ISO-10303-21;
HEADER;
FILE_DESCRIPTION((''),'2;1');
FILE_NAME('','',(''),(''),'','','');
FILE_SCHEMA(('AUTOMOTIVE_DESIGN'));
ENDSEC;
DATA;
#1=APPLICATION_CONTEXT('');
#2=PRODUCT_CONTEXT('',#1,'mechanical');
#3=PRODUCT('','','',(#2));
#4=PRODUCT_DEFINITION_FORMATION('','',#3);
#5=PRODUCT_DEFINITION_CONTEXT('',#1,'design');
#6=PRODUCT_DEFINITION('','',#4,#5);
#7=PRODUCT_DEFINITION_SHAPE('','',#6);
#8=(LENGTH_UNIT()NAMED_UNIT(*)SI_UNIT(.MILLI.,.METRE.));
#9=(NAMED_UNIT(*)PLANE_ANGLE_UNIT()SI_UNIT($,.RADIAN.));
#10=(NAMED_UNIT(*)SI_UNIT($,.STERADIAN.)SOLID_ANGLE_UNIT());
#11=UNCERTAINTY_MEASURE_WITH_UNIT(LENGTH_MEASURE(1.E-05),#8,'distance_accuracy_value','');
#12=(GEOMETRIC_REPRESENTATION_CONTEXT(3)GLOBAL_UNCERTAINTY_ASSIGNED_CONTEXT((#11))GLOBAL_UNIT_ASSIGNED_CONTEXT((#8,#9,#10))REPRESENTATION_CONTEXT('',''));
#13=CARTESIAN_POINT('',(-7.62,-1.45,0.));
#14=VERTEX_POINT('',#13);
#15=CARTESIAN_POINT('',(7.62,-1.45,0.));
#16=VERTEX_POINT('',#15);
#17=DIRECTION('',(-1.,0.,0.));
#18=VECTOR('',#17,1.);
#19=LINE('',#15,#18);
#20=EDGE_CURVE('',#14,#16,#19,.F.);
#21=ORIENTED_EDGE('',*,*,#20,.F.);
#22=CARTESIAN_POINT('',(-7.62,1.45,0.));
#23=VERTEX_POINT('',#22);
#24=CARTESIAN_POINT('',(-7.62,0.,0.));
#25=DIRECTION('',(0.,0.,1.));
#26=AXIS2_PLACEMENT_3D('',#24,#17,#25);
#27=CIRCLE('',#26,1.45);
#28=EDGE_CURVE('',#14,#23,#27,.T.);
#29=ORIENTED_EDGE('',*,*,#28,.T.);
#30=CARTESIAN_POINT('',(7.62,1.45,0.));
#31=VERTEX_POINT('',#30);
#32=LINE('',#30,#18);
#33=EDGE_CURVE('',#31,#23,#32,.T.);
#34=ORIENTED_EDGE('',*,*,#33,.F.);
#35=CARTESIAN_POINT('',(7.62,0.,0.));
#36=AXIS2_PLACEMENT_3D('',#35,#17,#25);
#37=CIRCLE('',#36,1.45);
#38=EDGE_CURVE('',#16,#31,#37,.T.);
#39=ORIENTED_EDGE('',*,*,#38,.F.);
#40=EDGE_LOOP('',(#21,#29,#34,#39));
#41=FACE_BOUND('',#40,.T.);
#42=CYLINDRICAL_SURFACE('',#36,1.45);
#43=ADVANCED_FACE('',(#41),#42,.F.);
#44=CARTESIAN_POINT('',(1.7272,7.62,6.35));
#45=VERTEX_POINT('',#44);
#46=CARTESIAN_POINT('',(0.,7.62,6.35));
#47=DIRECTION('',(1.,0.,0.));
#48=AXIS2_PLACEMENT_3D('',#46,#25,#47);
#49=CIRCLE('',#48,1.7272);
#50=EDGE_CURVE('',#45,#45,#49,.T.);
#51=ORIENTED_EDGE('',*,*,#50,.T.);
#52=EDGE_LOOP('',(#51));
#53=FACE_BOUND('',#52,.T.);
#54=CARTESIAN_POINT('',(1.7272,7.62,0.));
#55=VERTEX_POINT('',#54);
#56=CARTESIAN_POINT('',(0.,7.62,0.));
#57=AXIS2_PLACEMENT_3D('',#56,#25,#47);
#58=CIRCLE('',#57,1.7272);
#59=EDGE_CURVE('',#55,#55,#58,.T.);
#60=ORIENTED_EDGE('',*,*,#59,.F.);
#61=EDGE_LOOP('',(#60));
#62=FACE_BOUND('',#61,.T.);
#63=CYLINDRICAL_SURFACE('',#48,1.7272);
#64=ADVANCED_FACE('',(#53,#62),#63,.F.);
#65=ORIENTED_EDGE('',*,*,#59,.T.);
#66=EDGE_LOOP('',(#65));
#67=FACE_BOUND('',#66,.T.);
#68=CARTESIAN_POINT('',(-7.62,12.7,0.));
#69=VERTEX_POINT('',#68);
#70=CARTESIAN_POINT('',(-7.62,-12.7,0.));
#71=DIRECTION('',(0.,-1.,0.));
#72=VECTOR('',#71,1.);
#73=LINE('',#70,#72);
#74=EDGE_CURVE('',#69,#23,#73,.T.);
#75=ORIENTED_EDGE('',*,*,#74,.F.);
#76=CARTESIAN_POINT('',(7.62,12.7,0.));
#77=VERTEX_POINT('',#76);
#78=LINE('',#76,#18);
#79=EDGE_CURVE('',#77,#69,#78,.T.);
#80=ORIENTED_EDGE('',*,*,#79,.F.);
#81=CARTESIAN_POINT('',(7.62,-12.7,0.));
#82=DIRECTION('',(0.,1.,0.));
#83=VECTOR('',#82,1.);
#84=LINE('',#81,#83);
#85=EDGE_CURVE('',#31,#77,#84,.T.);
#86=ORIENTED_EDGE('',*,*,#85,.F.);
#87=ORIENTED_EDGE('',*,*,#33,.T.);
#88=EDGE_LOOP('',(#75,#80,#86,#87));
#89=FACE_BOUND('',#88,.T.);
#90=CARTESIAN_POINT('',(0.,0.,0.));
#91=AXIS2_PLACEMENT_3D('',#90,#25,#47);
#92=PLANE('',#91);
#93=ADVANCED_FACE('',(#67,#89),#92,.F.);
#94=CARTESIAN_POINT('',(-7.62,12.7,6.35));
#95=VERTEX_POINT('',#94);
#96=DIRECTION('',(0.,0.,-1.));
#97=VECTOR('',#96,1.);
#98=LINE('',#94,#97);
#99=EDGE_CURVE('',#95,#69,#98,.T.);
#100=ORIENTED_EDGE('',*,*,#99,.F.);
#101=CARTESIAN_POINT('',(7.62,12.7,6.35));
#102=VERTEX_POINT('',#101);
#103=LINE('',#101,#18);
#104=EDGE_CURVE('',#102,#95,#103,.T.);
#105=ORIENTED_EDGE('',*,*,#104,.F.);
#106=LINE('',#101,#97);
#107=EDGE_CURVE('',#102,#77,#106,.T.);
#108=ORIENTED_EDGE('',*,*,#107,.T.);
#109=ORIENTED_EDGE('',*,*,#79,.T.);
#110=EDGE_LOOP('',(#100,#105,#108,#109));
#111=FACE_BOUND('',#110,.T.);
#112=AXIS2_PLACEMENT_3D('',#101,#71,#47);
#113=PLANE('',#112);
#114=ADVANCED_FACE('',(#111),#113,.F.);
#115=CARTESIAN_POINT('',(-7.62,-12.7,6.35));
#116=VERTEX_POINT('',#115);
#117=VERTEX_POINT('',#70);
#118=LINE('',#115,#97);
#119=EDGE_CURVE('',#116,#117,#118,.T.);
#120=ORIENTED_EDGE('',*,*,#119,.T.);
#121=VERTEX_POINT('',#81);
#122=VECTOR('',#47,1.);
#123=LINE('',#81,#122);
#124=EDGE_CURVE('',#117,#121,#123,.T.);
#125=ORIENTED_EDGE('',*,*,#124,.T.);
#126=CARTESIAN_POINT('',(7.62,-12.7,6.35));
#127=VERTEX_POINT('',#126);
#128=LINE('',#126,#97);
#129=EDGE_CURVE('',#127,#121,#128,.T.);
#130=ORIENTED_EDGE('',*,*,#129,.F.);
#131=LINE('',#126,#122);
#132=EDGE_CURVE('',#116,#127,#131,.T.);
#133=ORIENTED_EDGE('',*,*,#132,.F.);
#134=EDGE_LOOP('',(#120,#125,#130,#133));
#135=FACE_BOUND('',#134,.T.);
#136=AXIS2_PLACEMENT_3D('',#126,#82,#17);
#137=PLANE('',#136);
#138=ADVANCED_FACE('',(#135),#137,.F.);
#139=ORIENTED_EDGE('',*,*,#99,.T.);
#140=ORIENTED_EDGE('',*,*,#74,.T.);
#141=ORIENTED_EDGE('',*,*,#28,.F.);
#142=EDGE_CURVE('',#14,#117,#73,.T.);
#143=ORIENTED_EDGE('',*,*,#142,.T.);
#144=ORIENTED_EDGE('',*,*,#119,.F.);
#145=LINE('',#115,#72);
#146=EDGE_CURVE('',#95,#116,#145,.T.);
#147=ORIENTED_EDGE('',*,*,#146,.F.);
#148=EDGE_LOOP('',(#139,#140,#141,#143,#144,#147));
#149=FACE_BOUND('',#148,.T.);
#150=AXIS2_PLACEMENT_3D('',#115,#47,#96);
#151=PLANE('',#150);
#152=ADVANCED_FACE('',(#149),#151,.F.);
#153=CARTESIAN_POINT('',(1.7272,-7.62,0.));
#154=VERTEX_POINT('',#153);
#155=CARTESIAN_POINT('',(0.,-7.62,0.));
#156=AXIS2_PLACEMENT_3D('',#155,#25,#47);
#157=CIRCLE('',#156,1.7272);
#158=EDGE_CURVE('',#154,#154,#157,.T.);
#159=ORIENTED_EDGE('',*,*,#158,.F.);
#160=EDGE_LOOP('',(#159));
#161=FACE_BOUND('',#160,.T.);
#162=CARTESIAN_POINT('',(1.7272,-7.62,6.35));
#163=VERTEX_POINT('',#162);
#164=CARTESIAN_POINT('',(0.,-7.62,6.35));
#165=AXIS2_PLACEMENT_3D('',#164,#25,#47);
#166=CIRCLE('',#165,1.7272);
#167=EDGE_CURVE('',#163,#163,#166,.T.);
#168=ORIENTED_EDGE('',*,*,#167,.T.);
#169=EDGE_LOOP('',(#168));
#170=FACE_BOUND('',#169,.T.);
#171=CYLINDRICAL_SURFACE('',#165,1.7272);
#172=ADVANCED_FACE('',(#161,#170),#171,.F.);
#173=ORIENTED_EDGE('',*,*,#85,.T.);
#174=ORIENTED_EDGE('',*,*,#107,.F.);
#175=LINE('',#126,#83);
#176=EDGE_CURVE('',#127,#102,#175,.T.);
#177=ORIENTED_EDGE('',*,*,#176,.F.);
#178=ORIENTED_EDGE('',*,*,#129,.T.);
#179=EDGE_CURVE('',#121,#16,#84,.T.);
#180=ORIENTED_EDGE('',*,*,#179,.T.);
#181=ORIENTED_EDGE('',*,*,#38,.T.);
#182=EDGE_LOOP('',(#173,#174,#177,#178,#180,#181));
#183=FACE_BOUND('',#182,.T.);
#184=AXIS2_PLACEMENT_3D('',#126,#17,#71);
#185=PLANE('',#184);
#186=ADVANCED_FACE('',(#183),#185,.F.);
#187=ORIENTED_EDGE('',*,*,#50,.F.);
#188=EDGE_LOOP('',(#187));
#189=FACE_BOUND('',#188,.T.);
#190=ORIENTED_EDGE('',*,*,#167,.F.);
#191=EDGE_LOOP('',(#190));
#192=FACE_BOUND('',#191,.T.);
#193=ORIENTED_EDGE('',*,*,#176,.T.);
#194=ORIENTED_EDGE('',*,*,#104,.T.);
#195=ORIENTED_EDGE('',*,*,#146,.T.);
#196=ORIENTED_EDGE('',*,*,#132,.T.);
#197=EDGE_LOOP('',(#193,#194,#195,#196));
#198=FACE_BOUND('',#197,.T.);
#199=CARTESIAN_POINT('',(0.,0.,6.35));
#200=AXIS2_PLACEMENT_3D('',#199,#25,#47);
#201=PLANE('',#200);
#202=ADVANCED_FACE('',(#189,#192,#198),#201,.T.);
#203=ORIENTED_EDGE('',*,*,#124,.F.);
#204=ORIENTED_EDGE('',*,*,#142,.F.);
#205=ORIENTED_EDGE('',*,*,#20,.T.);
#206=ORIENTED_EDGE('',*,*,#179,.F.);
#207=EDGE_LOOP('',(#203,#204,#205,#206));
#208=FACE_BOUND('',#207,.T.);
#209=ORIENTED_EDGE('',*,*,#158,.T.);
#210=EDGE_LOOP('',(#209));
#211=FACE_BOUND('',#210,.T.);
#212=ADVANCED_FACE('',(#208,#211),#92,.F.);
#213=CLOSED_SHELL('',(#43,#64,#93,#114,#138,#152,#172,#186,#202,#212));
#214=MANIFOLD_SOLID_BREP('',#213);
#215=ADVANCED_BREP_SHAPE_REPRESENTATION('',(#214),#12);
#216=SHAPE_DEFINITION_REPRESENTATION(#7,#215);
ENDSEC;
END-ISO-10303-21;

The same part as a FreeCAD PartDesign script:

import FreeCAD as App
import Part
import Sketcher
from FreeCAD import Vector
Q = App.Units.Quantity


def add_polygon(sketch, points):
    """Adds a closed chain of lines whose ends are joined by coincident constraints."""
    first, n = sketch.GeometryCount, len(points)
    for a, b in zip(points, points[1:] + points[:1]):
        sketch.addGeometry(Part.LineSegment(App.Vector(*a, 0), App.Vector(*b, 0)), False)
    for i in range(n):
        sketch.addConstraint(Sketcher.Constraint("Coincident", first + i, 2, first + (i + 1) % n, 1))

doc = App.newDocument("Part")
body = doc.addObject("PartDesign::Body", "Body")

sketch1 = doc.addObject("Sketcher::SketchObject", "Sketch")
body.addObject(sketch1)
sketch1.AttachmentSupport = (doc.XY_Plane, [""])
sketch1.MapMode = "FlatFace"
add_polygon(sketch1, [(-8, 13), (-8, -13), (8, -13), (8, 13)])
sketch1.addConstraint(Sketcher.Constraint("Vertical", 0))
sketch1.addConstraint(Sketcher.Constraint("Horizontal", 1))
sketch1.addConstraint(Sketcher.Constraint("Vertical", 2))
sketch1.addConstraint(Sketcher.Constraint("Horizontal", 3))
sketch1.addConstraint(Sketcher.Constraint("Symmetric", 0, 2, 2, 2, -1, 1))
sketch1.addConstraint(Sketcher.Constraint("DistanceY", 0, 2, 0, 1, Q("1 in")))
sketch1.addConstraint(Sketcher.Constraint("DistanceX", 1, 1, 1, 2, Q("0.6 in")))
pad1 = doc.addObject("PartDesign::Pad", "Pad")
body.addObject(pad1)
pad1.Profile = sketch1
pad1.Length = Q("0.25 in")

sketch2 = doc.addObject("Sketcher::SketchObject", "Sketch001")
body.addObject(sketch2)
sketch2.AttachmentSupport = (doc.XY_Plane, [""])
sketch2.MapMode = "FlatFace"
sketch2.AttachmentOffset = App.Placement(Vector(0, 0, 0.25 * 25.4), App.Rotation())
sketch2.addGeometry(Part.Circle(Vector(0, -7.6, 0), Vector(0, 0, 1), 1.7), False)
sketch2.addGeometry(Part.Circle(Vector(0, 7.6, 0), Vector(0, 0, 1), 1.7), False)
sketch2.addConstraint(Sketcher.Constraint("Equal", 0, 1))
sketch2.addConstraint(Sketcher.Constraint("Symmetric", 0, 3, 1, 3, -1, 1))
sketch2.addConstraint(Sketcher.Constraint("PointOnObject", 0, 3, -2))
sketch2.addConstraint(Sketcher.Constraint("Diameter", 0, Q("0.136 in")))
sketch2.addConstraint(Sketcher.Constraint("DistanceY", 0, 3, -1, 1, Q("0.3 in")))
doc.recompute()
hole = doc.addObject("PartDesign::Hole", "Hole")
body.addObject(hole)
hole.Profile = sketch2
hole.ThreadType = "None"
hole.Diameter = Q("0.136 in")
hole.DepthType = "ThroughAll"

sketch3 = doc.addObject("Sketcher::SketchObject", "Sketch002")
body.addObject(sketch3)
sketch3.AttachmentSupport = (doc.YZ_Plane, [""])
sketch3.MapMode = "FlatFace"
sketch3.AttachmentOffset = App.Placement(Vector(0, 0, -0.3 * 25.4), App.Rotation())
sketch3.addGeometry(Part.Circle(Vector(0, 0, 0), Vector(0, 0, 1), 1.4), False)
sketch3.addConstraint(Sketcher.Constraint("Coincident", 0, 3, -1, 1))
sketch3.addConstraint(Sketcher.Constraint("Diameter", 0, Q("2.9 mm")))
pocket1 = doc.addObject("PartDesign::Pocket", "Pocket")
body.addObject(pocket1)
pocket1.Profile = sketch3
pocket1.Type = "ThroughAll"
pocket1.Reversed = True

doc.recompute()
